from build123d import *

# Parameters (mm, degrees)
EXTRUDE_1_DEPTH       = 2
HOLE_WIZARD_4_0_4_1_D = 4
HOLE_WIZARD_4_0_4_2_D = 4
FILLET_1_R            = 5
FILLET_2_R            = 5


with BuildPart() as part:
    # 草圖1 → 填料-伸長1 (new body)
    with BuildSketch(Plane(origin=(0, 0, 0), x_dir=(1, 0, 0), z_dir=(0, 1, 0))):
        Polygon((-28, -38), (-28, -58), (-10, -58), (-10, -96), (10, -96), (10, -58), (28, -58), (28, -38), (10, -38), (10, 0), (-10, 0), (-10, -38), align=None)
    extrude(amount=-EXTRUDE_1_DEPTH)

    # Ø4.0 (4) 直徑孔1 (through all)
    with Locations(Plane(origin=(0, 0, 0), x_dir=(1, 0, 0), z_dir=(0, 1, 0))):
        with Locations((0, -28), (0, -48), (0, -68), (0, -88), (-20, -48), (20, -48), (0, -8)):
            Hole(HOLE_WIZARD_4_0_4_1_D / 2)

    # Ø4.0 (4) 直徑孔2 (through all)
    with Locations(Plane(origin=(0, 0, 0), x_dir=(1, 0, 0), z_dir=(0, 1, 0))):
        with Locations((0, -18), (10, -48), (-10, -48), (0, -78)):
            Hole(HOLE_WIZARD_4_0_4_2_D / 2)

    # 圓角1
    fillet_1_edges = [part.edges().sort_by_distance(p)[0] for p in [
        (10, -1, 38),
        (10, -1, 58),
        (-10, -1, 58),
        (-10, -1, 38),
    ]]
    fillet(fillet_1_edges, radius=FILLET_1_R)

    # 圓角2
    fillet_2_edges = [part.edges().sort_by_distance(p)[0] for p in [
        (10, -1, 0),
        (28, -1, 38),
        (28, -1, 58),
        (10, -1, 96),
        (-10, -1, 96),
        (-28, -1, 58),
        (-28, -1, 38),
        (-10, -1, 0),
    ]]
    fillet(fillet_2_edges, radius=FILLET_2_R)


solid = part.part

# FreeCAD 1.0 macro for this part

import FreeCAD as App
import Part
import Sketcher
Q = App.Units.Quantity


def edges_at(feature, points):
    """Names of the edges that pass closest to the given points."""
    edges = feature.Shape.Edges
    near = lambda p: min(range(len(edges)), key=lambda i: edges[i].distToShape(Part.Vertex(*p))[0])
    return sorted({f"Edge{near(p) + 1}" for p in points})


def add_polygon(sketch, points):
    """Adds a closed chain of lines whose ends are joined by coincident constraints."""
    first, n = sketch.GeometryCount, len(points)
    for a, b in zip(points, points[1:] + points[:1]):
        sketch.addGeometry(Part.LineSegment(App.Vector(*a, 0), App.Vector(*b, 0)), False)
    for i in range(n):
        sketch.addConstraint(Sketcher.Constraint("Coincident", first + i, 2, first + (i + 1) % n, 1))

doc = App.newDocument("Part")
body = doc.addObject("PartDesign::Body", "Body")

sketch1 = body.newObject("Sketcher::SketchObject", "Sketch")
sketch1.AttachmentSupport = (doc.getObject("XZ_Plane"), [""])
sketch1.MapMode = "FlatFace"
add_polygon(sketch1, [(-28, 38), (-28, 58), (-10, 58), (-10, 96), (10, 96), (10, 58), (28, 58), (28, 38), (10, 38), (10, 0), (-10, 0), (-10, 38)])
sketch1.addConstraint([
    Sketcher.Constraint("Vertical", 0),
    Sketcher.Constraint("Horizontal", 1),
    Sketcher.Constraint("Vertical", 2),
    Sketcher.Constraint("Horizontal", 3),
    Sketcher.Constraint("Vertical", 4),
    Sketcher.Constraint("Horizontal", 5),
    Sketcher.Constraint("Vertical", 6),
    Sketcher.Constraint("Horizontal", 7),
    Sketcher.Constraint("Vertical", 8),
    Sketcher.Constraint("Horizontal", 9),
    Sketcher.Constraint("Vertical", 10),
    Sketcher.Constraint("Horizontal", 11),
    Sketcher.Constraint("Symmetric", 8, 2, 9, 2, -1, 1),
    Sketcher.Constraint("Symmetric", 1, 2, 4, 2, -2),
    Sketcher.Constraint("Symmetric", 6, 2, 11, 2, -2),
    Sketcher.Constraint("Vertical", 4, 2, 7, 2),
    Sketcher.Constraint("Equal", 9, 0),
    Sketcher.Constraint("Equal", 4, 8),
    Sketcher.Constraint("DistanceX", 1, 1, 1, 2, Q("18 mm")),
    Sketcher.Constraint("DistanceX", 3, 1, 3, 2, Q("20 mm")),
    Sketcher.Constraint("DistanceY", 2, 1, 2, 2, Q("38 mm")),
])
pad1 = body.newObject("PartDesign::Pad", "Pad")
pad1.Profile = sketch1
pad1.Length = 2

sketch2 = body.newObject("Sketcher::SketchObject", "Sketch001")
sketch2.AttachmentSupport = (doc.getObject("XZ_Plane"), [""])
sketch2.MapMode = "FlatFace"
sketch2.addGeometry([
    Part.Circle(App.Vector(0, 28, 0), App.Vector(0, 0, 1), 2),
    Part.Circle(App.Vector(0, 48, 0), App.Vector(0, 0, 1), 2),
    Part.Circle(App.Vector(0, 68, 0), App.Vector(0, 0, 1), 2),
    Part.Circle(App.Vector(0, 88, 0), App.Vector(0, 0, 1), 2),
    Part.Circle(App.Vector(-20, 48, 0), App.Vector(0, 0, 1), 2),
    Part.Circle(App.Vector(20, 48, 0), App.Vector(0, 0, 1), 2),
    Part.Circle(App.Vector(0, 8, 0), App.Vector(0, 0, 1), 2),
], False)
sketch2.addConstraint([
    Sketcher.Constraint("Equal", 0, 1),
    Sketcher.Constraint("Equal", 1, 2),
    Sketcher.Constraint("Equal", 2, 3),
    Sketcher.Constraint("Equal", 3, 4),
    Sketcher.Constraint("Equal", 4, 5),
    Sketcher.Constraint("Equal", 5, 6),
    Sketcher.Constraint("Symmetric", 4, 3, 5, 3, -2),
    Sketcher.Constraint("PointOnObject", 0, 3, -2),
    Sketcher.Constraint("PointOnObject", 1, 3, -2),
    Sketcher.Constraint("PointOnObject", 2, 3, -2),
    Sketcher.Constraint("PointOnObject", 3, 3, -2),
    Sketcher.Constraint("PointOnObject", 6, 3, -2),
    Sketcher.Constraint("Horizontal", 1, 3, 4, 3),
    Sketcher.Constraint("Diameter", 0, Q("4 mm")),
    Sketcher.Constraint("DistanceY", -1, 1, 0, 3, Q("28 mm")),
    Sketcher.Constraint("DistanceY", -1, 1, 1, 3, Q("48 mm")),
    Sketcher.Constraint("DistanceY", -1, 1, 2, 3, Q("68 mm")),
    Sketcher.Constraint("DistanceY", -1, 1, 3, 3, Q("88 mm")),
    Sketcher.Constraint("DistanceX", 4, 3, -1, 1, Q("20 mm")),
    Sketcher.Constraint("DistanceY", -1, 1, 6, 3, Q("8 mm")),
])
doc.recompute()
hole = body.newObject("PartDesign::Hole", "Hole")
hole.Profile = sketch2
hole.ThreadType = "None"
hole.Diameter = 4
hole.DepthType = "ThroughAll"
hole.Reversed = True

sketch3 = body.newObject("Sketcher::SketchObject", "Sketch002")
sketch3.AttachmentSupport = (doc.getObject("XZ_Plane"), [""])
sketch3.MapMode = "FlatFace"
sketch3.addGeometry([
    Part.Circle(App.Vector(0, 18, 0), App.Vector(0, 0, 1), 2),
    Part.Circle(App.Vector(10, 48, 0), App.Vector(0, 0, 1), 2),
    Part.Circle(App.Vector(-10, 48, 0), App.Vector(0, 0, 1), 2),
    Part.Circle(App.Vector(0, 78, 0), App.Vector(0, 0, 1), 2),
], False)
sketch3.addConstraint([
    Sketcher.Constraint("Equal", 0, 1),
    Sketcher.Constraint("Equal", 1, 2),
    Sketcher.Constraint("Equal", 2, 3),
    Sketcher.Constraint("Symmetric", 1, 3, 2, 3, -2),
    Sketcher.Constraint("PointOnObject", 0, 3, -2),
    Sketcher.Constraint("PointOnObject", 3, 3, -2),
    Sketcher.Constraint("Diameter", 0, Q("4 mm")),
    Sketcher.Constraint("DistanceY", -1, 1, 0, 3, Q("18 mm")),
    Sketcher.Constraint("DistanceX", -1, 1, 1, 3, Q("10 mm")),
    Sketcher.Constraint("DistanceY", -1, 1, 1, 3, Q("48 mm")),
    Sketcher.Constraint("DistanceY", -1, 1, 3, 3, Q("78 mm")),
])
doc.recompute()
hole2 = body.newObject("PartDesign::Hole", "Hole001")
hole2.Profile = sketch3
hole2.ThreadType = "None"
hole2.Diameter = 4
hole2.DepthType = "ThroughAll"
hole2.Reversed = True
doc.recompute()

fillet = body.newObject("PartDesign::Fillet", "Fillet")
fillet.Base = (hole2, edges_at(hole2, [
    (10, -1, 38),
    (10, -1, 58),
    (-10, -1, 58),
    (-10, -1, 38),
]))
fillet.Radius = 5
doc.recompute()

fillet2 = body.newObject("PartDesign::Fillet", "Fillet001")
fillet2.Base = (fillet, edges_at(fillet, [
    (10, -1, 0),
    (28, -1, 38),
    (28, -1, 58),
    (10, -1, 96),
    (-10, -1, 96),
    (-28, -1, 58),
    (-28, -1, 38),
    (-10, -1, 0),
]))
fillet2.Radius = 5

doc.recompute()
